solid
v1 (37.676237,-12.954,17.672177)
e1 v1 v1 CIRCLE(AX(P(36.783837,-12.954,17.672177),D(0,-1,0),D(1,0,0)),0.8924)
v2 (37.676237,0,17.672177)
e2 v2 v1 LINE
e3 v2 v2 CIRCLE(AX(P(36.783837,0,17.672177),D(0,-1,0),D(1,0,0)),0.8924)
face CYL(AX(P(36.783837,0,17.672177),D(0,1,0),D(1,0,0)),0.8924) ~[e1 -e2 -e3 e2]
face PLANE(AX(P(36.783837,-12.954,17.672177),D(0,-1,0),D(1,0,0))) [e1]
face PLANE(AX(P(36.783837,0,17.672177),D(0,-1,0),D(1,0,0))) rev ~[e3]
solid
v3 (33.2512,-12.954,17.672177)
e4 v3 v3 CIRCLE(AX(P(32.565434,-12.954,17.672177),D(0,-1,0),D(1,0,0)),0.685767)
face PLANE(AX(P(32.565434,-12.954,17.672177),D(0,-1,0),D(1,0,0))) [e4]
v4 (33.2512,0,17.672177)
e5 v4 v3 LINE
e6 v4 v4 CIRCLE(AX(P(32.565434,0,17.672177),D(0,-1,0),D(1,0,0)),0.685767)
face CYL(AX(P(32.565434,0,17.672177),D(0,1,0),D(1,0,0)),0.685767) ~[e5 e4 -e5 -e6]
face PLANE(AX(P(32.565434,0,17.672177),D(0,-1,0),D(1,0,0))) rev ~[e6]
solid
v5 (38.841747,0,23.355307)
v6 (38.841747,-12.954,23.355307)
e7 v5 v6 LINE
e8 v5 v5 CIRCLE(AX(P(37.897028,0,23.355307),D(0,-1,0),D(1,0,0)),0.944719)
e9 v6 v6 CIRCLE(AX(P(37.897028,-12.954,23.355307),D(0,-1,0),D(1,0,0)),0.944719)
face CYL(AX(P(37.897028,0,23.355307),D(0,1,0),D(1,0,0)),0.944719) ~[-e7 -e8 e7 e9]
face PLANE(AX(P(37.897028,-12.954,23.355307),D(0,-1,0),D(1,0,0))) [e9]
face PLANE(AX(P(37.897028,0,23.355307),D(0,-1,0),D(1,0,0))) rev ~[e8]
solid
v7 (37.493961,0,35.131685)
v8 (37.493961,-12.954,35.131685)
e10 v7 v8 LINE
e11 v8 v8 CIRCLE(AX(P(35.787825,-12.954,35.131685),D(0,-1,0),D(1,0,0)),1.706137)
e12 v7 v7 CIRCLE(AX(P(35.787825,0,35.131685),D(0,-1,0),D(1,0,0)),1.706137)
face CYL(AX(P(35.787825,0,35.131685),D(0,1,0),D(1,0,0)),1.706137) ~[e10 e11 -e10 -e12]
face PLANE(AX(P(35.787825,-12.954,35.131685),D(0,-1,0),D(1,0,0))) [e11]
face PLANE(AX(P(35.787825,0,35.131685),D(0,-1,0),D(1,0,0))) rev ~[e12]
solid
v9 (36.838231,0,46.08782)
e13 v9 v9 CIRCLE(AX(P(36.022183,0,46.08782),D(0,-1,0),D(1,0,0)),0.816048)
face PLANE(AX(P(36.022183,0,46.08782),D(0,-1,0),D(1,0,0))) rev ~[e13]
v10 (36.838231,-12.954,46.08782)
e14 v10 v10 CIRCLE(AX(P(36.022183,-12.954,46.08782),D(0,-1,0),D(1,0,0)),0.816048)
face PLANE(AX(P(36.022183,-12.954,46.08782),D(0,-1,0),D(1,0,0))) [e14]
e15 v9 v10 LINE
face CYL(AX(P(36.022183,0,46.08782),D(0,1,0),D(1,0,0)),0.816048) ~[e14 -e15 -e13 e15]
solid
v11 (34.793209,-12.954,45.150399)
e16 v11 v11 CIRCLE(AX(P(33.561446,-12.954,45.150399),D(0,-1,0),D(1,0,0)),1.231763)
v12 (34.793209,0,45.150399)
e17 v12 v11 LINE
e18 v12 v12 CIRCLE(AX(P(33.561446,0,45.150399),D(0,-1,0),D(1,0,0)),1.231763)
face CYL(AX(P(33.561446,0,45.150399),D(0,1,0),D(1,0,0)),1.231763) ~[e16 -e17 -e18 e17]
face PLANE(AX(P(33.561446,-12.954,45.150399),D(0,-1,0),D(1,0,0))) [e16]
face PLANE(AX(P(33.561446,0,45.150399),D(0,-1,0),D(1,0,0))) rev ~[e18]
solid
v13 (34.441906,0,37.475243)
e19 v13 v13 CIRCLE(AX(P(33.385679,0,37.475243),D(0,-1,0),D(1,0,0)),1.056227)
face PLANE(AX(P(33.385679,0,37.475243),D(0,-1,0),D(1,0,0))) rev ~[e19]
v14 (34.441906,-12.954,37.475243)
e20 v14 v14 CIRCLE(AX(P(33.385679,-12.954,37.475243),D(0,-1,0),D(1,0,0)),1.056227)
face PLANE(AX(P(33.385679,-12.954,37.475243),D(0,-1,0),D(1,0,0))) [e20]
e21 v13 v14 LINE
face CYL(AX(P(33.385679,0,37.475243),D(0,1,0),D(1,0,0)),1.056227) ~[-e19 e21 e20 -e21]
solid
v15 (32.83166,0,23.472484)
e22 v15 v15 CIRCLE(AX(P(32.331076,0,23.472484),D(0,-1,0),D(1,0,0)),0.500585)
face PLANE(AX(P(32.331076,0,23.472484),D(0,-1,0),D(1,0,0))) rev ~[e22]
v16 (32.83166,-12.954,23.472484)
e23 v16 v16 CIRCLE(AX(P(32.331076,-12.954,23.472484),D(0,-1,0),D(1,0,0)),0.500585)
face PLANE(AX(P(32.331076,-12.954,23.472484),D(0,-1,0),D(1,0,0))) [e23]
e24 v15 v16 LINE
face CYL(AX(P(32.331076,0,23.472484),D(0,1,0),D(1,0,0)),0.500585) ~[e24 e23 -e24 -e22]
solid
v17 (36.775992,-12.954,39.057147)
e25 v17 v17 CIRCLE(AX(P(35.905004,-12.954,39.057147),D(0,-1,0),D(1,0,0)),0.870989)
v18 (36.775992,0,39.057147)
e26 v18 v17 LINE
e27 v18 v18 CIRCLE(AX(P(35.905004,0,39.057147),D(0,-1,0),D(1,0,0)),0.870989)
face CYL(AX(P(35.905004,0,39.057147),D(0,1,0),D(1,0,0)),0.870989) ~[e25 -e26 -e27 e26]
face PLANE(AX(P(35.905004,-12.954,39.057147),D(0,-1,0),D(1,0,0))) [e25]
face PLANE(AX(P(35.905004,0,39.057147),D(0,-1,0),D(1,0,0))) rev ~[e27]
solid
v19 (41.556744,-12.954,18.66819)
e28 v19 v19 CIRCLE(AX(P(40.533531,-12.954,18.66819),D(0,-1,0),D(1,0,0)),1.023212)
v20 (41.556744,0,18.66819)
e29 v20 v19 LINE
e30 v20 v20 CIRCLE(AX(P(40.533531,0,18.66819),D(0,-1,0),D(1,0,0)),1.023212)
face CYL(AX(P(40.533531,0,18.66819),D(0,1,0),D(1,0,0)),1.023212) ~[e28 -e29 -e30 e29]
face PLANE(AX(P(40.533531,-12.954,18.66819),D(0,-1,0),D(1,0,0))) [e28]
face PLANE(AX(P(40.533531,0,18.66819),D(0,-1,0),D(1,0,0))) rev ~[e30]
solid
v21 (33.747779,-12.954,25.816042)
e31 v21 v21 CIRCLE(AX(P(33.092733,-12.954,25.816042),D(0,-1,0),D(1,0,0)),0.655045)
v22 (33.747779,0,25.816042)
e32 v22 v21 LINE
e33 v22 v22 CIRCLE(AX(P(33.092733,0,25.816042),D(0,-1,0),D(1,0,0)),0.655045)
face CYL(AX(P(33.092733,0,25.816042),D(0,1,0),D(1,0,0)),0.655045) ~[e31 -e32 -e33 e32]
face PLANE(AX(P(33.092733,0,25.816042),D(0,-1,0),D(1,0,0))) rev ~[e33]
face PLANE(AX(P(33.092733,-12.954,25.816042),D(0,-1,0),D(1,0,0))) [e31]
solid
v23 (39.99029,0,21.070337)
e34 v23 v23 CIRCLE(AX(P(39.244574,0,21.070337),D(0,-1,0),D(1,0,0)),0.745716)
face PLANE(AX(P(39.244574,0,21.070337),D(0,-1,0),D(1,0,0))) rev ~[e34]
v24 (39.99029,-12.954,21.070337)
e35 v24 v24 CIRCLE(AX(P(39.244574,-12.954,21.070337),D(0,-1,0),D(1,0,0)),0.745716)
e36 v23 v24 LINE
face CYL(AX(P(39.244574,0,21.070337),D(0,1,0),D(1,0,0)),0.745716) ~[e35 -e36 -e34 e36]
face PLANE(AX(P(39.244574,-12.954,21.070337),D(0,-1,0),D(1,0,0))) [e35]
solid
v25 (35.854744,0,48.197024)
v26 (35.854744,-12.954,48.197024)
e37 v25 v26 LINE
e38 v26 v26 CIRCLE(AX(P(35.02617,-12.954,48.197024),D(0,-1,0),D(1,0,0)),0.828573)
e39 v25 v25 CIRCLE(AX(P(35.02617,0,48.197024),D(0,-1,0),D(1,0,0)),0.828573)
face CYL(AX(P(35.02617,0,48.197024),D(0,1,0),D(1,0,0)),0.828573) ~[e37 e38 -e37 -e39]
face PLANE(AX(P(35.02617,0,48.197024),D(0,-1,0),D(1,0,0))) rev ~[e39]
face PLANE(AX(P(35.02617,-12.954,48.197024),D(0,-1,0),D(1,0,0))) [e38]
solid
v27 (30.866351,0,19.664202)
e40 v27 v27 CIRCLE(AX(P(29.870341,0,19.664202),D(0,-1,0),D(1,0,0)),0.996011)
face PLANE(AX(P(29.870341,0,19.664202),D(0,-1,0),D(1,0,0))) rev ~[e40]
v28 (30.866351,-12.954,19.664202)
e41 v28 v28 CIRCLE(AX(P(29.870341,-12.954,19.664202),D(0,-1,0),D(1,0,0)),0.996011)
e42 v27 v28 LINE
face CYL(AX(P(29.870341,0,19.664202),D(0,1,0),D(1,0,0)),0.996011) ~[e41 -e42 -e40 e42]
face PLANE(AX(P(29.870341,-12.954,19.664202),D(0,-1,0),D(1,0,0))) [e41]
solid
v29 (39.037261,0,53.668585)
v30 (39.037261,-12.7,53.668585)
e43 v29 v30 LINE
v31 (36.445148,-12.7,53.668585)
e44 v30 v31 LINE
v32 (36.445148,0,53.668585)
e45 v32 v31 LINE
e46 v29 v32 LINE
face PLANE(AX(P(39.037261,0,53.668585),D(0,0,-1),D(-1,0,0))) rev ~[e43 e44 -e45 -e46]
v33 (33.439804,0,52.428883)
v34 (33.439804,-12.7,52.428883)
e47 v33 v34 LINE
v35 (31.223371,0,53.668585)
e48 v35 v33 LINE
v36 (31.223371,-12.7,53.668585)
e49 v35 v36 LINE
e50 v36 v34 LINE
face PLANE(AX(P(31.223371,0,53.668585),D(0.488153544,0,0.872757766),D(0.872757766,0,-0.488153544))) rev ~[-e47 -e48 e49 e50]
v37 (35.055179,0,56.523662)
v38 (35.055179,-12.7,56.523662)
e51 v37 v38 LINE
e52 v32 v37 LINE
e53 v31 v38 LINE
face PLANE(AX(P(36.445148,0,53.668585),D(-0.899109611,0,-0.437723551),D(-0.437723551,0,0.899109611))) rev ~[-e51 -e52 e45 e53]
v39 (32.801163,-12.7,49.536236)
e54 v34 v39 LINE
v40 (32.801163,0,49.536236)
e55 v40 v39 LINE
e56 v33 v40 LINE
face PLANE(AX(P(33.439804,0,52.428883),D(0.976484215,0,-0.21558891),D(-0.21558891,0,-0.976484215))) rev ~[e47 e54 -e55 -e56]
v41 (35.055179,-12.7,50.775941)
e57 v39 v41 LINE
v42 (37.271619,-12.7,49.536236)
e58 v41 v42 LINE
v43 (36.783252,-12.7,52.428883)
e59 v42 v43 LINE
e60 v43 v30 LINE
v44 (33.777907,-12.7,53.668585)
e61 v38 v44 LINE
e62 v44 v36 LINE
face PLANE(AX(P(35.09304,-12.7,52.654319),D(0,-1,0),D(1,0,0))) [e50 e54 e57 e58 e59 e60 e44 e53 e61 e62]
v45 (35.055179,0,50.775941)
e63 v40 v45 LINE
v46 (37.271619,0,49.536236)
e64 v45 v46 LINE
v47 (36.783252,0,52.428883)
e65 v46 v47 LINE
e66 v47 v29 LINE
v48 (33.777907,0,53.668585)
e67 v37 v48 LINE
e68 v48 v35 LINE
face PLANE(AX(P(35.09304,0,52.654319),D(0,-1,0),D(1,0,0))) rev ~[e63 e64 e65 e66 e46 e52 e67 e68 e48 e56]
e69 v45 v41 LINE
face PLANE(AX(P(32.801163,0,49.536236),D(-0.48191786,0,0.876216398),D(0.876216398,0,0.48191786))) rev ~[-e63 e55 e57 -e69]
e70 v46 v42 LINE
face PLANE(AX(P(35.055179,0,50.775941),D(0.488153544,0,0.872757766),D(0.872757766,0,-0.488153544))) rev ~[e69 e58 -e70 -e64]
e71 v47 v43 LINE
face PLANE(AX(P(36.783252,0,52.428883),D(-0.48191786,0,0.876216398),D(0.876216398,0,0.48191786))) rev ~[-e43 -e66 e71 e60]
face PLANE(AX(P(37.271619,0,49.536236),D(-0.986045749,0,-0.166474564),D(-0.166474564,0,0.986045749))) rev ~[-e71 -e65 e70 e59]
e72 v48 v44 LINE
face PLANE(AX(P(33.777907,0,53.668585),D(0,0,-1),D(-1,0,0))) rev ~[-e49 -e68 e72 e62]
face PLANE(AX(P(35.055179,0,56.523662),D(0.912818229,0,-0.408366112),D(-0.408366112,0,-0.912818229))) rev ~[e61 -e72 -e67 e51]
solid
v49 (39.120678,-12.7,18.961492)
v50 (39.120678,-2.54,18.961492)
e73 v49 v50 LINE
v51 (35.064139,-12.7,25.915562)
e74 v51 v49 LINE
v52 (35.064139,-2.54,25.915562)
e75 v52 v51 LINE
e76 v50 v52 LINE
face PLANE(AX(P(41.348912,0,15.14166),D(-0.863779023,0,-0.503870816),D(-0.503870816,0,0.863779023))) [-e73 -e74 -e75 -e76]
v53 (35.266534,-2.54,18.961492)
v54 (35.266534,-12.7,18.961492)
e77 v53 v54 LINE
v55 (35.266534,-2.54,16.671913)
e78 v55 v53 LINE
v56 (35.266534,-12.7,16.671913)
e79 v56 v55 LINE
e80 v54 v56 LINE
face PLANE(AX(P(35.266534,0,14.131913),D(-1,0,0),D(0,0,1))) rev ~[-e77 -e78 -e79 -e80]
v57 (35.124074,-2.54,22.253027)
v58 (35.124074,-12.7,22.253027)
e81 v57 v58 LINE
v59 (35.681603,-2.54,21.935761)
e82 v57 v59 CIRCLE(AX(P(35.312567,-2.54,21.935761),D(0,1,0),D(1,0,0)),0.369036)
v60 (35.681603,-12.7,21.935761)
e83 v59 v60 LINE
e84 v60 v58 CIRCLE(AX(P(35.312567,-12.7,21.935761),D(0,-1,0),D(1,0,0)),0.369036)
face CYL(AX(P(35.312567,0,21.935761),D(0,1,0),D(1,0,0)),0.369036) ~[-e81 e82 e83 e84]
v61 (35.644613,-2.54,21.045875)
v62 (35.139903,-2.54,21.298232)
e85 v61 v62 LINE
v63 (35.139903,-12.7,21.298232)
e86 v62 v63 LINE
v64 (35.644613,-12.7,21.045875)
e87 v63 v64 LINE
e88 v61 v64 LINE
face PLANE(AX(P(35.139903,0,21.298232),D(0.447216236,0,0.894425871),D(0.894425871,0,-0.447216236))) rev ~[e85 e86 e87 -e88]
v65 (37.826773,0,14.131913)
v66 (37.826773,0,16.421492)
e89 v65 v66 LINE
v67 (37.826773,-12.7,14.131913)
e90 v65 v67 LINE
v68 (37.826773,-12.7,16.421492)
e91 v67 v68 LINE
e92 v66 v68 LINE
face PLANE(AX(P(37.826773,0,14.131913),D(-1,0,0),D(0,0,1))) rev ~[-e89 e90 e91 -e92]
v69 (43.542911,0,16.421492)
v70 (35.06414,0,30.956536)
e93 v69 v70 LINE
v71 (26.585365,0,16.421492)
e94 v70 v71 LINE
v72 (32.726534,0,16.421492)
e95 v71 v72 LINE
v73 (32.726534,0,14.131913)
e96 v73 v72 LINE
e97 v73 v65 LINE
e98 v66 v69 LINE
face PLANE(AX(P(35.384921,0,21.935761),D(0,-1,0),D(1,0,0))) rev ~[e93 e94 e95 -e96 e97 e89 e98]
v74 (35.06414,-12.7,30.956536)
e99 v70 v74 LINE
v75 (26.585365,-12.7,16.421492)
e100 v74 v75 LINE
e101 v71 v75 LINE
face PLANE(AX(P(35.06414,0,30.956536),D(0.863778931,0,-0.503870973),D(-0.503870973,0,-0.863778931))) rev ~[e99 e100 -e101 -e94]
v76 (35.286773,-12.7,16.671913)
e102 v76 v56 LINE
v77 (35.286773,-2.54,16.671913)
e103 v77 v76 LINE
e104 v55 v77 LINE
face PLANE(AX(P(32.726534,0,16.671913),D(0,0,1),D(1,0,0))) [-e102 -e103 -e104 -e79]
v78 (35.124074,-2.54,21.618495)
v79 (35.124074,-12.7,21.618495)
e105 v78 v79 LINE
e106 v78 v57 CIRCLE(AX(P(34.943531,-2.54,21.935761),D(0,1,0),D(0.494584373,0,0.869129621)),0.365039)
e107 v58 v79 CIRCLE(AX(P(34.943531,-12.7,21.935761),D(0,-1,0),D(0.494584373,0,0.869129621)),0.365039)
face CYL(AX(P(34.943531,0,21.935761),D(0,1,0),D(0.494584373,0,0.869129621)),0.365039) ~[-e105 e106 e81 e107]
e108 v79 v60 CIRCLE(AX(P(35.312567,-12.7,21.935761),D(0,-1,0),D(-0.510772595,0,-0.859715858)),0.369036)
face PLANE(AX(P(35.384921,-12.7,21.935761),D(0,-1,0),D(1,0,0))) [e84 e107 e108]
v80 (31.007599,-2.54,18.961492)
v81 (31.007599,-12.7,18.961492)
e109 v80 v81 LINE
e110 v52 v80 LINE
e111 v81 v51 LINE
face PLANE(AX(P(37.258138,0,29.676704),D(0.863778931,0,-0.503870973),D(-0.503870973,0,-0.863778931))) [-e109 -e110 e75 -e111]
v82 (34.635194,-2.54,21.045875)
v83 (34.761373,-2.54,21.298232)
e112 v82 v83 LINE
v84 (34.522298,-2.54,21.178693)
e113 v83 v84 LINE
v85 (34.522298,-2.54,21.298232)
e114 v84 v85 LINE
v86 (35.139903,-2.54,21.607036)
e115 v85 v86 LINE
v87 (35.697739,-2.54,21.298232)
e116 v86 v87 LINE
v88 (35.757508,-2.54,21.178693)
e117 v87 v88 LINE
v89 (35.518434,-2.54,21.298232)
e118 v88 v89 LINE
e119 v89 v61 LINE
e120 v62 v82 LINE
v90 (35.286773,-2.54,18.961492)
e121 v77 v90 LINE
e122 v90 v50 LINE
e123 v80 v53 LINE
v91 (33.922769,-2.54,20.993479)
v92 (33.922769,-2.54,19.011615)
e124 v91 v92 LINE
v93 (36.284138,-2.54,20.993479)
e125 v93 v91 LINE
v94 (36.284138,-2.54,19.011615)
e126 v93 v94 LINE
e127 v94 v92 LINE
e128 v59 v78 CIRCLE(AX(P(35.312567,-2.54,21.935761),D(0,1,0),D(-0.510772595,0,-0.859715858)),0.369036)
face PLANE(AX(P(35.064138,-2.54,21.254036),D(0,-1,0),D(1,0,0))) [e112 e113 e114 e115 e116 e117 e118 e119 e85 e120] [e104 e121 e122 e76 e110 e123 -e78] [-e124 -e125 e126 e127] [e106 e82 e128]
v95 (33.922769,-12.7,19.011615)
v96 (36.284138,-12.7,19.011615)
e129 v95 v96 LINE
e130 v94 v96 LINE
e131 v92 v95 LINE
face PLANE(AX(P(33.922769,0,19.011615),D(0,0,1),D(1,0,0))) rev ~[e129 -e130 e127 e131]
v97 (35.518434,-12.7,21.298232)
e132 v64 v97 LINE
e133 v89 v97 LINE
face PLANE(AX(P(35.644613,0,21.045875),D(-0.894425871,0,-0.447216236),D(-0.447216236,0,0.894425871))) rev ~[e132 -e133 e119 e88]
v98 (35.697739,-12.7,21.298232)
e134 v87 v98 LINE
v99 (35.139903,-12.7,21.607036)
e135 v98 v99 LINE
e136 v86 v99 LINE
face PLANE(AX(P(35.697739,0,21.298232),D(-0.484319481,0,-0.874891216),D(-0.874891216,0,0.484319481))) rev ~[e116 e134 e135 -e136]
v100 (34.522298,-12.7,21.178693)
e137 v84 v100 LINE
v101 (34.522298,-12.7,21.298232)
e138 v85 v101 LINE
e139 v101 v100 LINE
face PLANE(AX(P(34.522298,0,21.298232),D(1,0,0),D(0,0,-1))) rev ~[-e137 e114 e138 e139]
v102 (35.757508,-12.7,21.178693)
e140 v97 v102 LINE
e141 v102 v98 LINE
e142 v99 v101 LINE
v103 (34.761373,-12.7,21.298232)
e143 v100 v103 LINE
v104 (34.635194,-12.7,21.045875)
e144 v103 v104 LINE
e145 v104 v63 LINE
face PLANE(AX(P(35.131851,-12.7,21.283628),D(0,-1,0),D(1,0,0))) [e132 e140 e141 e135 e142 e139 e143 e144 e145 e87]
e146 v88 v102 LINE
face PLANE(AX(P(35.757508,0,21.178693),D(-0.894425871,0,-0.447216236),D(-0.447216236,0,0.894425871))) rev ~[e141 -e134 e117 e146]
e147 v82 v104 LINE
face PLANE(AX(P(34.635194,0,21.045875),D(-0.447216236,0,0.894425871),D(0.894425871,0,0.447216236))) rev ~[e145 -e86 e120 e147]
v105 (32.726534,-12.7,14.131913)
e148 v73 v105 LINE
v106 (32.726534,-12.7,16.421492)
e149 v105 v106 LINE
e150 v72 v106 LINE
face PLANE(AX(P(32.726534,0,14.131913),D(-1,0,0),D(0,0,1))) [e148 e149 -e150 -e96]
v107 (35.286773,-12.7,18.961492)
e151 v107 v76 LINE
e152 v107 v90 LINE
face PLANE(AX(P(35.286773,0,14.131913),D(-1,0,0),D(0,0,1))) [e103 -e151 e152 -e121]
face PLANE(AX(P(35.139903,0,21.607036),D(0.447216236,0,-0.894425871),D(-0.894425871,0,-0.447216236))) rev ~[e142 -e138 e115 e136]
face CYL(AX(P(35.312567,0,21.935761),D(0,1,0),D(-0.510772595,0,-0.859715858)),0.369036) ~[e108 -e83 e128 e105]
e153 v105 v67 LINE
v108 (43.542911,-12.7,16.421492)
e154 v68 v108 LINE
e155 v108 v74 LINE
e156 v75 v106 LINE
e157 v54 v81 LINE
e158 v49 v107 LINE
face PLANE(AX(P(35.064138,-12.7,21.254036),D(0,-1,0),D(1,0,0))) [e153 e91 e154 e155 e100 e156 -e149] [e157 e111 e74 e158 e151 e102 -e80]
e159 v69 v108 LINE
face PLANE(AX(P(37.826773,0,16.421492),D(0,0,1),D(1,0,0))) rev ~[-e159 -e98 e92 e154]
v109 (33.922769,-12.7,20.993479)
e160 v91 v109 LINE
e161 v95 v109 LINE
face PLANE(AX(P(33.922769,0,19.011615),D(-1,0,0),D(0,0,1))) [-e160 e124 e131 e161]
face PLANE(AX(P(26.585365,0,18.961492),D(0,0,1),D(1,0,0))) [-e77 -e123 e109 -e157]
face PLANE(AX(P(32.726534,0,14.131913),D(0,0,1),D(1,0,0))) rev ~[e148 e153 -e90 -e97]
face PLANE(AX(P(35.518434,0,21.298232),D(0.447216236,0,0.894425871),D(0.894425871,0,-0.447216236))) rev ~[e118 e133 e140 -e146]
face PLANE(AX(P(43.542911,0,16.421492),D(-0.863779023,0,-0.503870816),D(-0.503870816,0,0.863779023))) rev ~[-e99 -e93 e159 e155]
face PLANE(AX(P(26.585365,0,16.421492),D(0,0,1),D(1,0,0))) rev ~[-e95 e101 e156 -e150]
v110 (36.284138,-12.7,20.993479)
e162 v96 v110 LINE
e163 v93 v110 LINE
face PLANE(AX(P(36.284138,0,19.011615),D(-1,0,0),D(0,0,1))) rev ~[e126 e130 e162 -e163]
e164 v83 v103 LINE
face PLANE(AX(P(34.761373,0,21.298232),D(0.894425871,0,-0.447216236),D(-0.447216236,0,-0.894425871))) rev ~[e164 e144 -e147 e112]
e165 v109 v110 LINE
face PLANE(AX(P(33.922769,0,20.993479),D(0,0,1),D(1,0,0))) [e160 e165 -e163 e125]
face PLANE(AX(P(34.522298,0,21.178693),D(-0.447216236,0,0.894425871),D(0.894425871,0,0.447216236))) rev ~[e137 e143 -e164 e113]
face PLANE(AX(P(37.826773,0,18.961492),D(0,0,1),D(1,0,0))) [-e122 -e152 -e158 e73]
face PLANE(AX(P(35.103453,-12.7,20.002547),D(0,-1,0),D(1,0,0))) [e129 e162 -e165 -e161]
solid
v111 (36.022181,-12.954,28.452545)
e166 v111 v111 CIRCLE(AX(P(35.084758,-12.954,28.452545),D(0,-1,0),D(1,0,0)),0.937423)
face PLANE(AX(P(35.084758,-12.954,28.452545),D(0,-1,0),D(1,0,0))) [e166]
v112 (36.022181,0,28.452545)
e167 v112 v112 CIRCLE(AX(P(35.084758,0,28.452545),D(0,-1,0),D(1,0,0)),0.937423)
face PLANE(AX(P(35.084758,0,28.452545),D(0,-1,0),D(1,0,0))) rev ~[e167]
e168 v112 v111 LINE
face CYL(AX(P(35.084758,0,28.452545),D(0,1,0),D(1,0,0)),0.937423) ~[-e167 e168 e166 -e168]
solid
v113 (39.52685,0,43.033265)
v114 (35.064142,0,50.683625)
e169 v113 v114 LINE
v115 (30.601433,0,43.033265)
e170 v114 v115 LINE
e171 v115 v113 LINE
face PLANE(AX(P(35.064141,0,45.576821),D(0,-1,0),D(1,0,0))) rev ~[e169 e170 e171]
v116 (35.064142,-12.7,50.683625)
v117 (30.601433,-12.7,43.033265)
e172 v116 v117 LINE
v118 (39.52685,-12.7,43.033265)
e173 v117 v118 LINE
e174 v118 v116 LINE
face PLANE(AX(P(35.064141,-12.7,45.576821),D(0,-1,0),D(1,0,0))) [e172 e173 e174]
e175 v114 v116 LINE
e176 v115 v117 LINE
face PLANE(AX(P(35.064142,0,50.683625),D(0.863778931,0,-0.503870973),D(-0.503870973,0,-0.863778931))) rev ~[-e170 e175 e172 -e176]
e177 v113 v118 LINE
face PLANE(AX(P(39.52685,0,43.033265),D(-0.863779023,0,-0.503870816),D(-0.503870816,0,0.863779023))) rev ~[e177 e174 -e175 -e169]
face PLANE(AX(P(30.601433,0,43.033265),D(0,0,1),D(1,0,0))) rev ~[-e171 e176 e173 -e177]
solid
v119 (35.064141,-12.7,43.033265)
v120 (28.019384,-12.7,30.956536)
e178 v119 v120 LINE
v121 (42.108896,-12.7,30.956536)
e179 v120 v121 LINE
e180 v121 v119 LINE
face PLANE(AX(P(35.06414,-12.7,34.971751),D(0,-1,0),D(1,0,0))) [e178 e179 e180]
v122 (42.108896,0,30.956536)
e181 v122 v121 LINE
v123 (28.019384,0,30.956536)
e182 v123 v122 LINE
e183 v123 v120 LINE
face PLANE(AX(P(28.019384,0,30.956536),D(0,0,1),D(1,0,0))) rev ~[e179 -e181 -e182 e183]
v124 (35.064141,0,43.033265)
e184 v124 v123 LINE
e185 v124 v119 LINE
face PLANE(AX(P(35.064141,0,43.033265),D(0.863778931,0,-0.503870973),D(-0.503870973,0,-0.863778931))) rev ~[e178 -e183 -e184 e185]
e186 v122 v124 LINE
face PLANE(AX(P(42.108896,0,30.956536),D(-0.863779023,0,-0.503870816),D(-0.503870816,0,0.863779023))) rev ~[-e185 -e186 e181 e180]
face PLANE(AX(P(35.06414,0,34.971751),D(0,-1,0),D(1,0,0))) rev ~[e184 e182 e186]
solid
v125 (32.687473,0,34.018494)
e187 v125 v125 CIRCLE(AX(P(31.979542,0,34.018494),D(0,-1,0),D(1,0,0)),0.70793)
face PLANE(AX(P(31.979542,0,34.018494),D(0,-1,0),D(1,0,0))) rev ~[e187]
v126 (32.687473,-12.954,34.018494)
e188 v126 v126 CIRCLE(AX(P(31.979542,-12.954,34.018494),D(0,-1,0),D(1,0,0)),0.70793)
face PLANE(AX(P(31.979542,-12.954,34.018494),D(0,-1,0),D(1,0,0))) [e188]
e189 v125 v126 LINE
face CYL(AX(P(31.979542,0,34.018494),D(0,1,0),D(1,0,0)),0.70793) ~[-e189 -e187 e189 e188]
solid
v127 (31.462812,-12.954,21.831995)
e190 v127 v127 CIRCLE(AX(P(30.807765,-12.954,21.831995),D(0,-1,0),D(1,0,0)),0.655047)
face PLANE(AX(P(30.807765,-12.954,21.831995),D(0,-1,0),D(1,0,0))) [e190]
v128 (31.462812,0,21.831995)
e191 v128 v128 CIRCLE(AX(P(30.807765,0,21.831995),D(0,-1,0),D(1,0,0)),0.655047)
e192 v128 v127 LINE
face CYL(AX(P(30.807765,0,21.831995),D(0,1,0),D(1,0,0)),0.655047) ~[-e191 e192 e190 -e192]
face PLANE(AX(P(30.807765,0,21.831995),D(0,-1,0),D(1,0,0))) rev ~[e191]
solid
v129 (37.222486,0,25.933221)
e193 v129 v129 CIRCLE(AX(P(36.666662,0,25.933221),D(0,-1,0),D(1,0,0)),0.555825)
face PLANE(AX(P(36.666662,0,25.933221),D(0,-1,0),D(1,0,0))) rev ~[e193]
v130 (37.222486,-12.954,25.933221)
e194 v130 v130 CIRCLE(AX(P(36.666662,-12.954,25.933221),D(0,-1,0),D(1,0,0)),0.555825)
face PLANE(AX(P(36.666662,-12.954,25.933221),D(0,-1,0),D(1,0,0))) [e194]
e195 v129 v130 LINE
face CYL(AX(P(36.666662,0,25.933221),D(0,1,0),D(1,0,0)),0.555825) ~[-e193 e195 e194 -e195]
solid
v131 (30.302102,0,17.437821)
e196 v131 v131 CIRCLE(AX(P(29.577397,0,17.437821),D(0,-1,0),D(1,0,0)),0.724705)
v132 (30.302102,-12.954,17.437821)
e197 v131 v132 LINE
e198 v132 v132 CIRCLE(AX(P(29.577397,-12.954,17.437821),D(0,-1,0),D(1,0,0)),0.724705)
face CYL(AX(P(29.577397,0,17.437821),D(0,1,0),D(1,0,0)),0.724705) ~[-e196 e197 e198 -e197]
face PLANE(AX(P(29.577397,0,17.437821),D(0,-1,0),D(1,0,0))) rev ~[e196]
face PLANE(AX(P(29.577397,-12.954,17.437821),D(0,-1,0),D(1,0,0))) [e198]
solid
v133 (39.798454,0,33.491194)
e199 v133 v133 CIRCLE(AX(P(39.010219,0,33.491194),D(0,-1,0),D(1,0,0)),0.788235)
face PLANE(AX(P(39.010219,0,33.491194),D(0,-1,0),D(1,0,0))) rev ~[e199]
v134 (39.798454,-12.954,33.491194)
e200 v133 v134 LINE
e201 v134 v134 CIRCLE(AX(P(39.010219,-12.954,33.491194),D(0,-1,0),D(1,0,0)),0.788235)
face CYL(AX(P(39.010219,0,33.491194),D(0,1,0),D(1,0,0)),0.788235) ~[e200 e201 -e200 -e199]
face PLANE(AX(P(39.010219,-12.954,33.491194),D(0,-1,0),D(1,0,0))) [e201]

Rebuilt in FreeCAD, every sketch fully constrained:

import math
import FreeCAD as App
import Part
import Sketcher

V = App.Vector
Q = App.Units.Quantity


def faces_at(feature, points):
    """Names of the faces that lie closest to the given points."""
    faces = feature.Shape.Faces
    near = lambda p: min(range(len(faces)), key=lambda i: faces[i].distToShape(Part.Vertex(*p))[0])
    return sorted({f"Face{near(p) + 1}" for p in points})


def add_polygon(sketch, points):
    """Adds a closed chain of lines whose ends are joined by coincident constraints."""
    first, n = sketch.GeometryCount, len(points)
    for a, b in zip(points, points[1:] + points[:1]):
        sketch.addGeometry(Part.LineSegment(App.Vector(*a, 0), App.Vector(*b, 0)), False)
    for i in range(n):
        sketch.addConstraint(Sketcher.Constraint("Coincident", first + i, 2, first + (i + 1) % n, 1))

doc = App.newDocument("Part")
body = doc.addObject("PartDesign::Body", "Body")

sketch1 = body.newObject("Sketcher::SketchObject", "Sketch")
sketch1.AttachmentSupport = (doc.getObject("XZ_Plane"), [""])
sketch1.MapMode = "FlatFace"
add_polygon(sketch1, [(40, 43), (35, 51), (31, 43)])
sketch1.addConstraint([
    Sketcher.Constraint("Horizontal", 2),
    Sketcher.Constraint("Equal", 0, 1),
    Sketcher.Constraint("Distance", 0, Q("8.856849 mm")),
    Sketcher.Constraint("DistanceX", 2, 1, 2, 2, Q("8.925417 mm")),
    Sketcher.Constraint("DistanceX", -1, 1, 2, 2, Q("39.52685 mm")),
    Sketcher.Constraint("DistanceY", -1, 1, 0, 2, Q("50.683625 mm")),
])
pad1 = body.newObject("PartDesign::Pad", "Pad")
pad1.Profile = sketch1
pad1.Length = Q("0.5 in")
body2 = doc.addObject("PartDesign::Body", "Body001")

sketch2 = body2.newObject("Sketcher::SketchObject", "Sketch001")
sketch2.AttachmentSupport = (doc.getObject("XZ_Plane001"), [""])
sketch2.MapMode = "FlatFace"
add_polygon(sketch2, [(43.5, 16.4), (35.1, 31), (26.6, 16.4), (32.7, 16.4), (32.7, 14.1), (37.8, 14.1), (37.8, 16.4)])
sketch2.addConstraint([
    Sketcher.Constraint("Horizontal", 2),
    Sketcher.Constraint("Vertical", 3),
    Sketcher.Constraint("Horizontal", 4),
    Sketcher.Constraint("Vertical", 5),
    Sketcher.Constraint("Horizontal", 6),
    Sketcher.Constraint("Horizontal", 2, 2, 5, 2),
    Sketcher.Constraint("Equal", 0, 1),
    Sketcher.Constraint("DistanceX", 2, 1, 2, 2, Q("6.141168 mm")),
    Sketcher.Constraint("DistanceX", 4, 1, 4, 2, Q("5.100239 mm")),
    Sketcher.Constraint("DistanceY", 3, 2, 3, 1, Q("2.289579 mm")),
    Sketcher.Constraint("Distance", 0, Q("16.827271 mm")),
    Sketcher.Constraint("DistanceX", 6, 1, 6, 2, Q("5.716138 mm")),
    Sketcher.Constraint("DistanceX", -1, 1, 0, 2, Q("35.06414 mm")),
    Sketcher.Constraint("DistanceY", -1, 1, 0, 2, Q("30.956536 mm")),
])
pad2 = body2.newObject("PartDesign::Pad", "Pad001")
pad2.Profile = sketch2
pad2.Length = Q("0.5 in")
doc.recompute()

thickness = body2.newObject("PartDesign::Thickness", "Thickness")
thickness.Base = (pad2, faces_at(pad2, [(35.064, -12.7, 22.544)]))
thickness.Value = Q("0.1 in")
thickness.Reversed = True
thickness.Join = "Intersection"

sketch3 = body2.newObject("Sketcher::SketchObject", "Sketch002")
sketch3.AttachmentSupport = (doc.getObject("XZ_Plane001"), [""])
sketch3.MapMode = "FlatFace"
add_polygon(sketch3, [(33.9, 21), (33.9, 19), (36.3, 19), (36.3, 21)])
sketch3.addConstraint([
    Sketcher.Constraint("Vertical", 0),
    Sketcher.Constraint("Horizontal", 1),
    Sketcher.Constraint("Vertical", 2),
    Sketcher.Constraint("Horizontal", 3),
    Sketcher.Constraint("DistanceX", 1, 1, 1, 2, Q("2.361368 mm")),
    Sketcher.Constraint("DistanceY", 0, 2, 0, 1, Q("1.981864 mm")),
    Sketcher.Constraint("DistanceX", -1, 1, 0, 2, Q("33.922769 mm")),
    Sketcher.Constraint("DistanceY", -1, 1, 2, 2, Q("20.993479 mm")),
])
pad3 = body2.newObject("PartDesign::Pad", "Pad002")
pad3.Profile = sketch3
pad3.Length = Q("0.5 in")

sketch4 = body2.newObject("Sketcher::SketchObject", "Sketch003")
sketch4.AttachmentSupport = (doc.getObject("XZ_Plane001"), [""])
sketch4.MapMode = "FlatFace"
sketch4.addGeometry(Part.ArcOfCircle(Part.Circle(V(35.31, 21.94, 0), V(0, 0, 1), 0.37), math.radians(-121), math.radians(0)), False)
sketch4.addGeometry(Part.ArcOfCircle(Part.Circle(V(35.31, 21.94, 0), V(0, 0, 1), 0.37), math.radians(0), math.radians(121)), False)
sketch4.addGeometry(Part.ArcOfCircle(Part.Circle(V(34.94, 21.94, 0), V(0, 0, 1), 0.37), math.radians(60), math.radians(300)), False)
add_polygon(sketch4, [(34.64, 21.05), (35.14, 21.3), (35.64, 21.05), (35.52, 21.3), (35.76, 21.18), (35.7, 21.3), (35.14, 21.61), (34.52, 21.3), (34.52, 21.18), (34.76, 21.3)])
sketch4.addConstraint([
    Sketcher.Constraint("Tangent", 0, 2, 1, 1),
    Sketcher.Constraint("Coincident", 1, 2, 2, 1),
    Sketcher.Constraint("Coincident", 2, 2, 0, 1),
    Sketcher.Constraint("Vertical", 10),
    Sketcher.Constraint("Equal", 0, 1),
    Sketcher.Constraint("Perpendicular", 3, 5),
    Sketcher.Constraint("Parallel", 4, 6),
    Sketcher.Constraint("Parallel", 5, 7),
    Sketcher.Constraint("Perpendicular", 7, 9),
    Sketcher.Constraint("Parallel", 9, 11),
    Sketcher.Constraint("Perpendicular", 6, 12),
    Sketcher.Constraint("Horizontal", 1, 3, 2, 3),
    Sketcher.Constraint("Horizontal", 2, 3, 0, 2),
    Sketcher.Constraint("Horizontal", 3, 2, 5, 2),
    Sketcher.Constraint("Horizontal", 5, 2, 7, 2),
    Sketcher.Constraint("Horizontal", 7, 2, 9, 2),
    Sketcher.Constraint("Horizontal", 6, 2, 10, 2),
    Sketcher.Constraint("Horizontal", 9, 2, 11, 2),
    Sketcher.Constraint("Horizontal", 4, 2, 12, 2),
    Sketcher.Constraint("Vertical", 3, 2, 8, 2),
    Sketcher.Constraint("Equal", 3, 4),
    Sketcher.Constraint("Radius", 2, Q("0.365039 mm")),
    Sketcher.Constraint("Radius", 0, Q("0.369036 mm")),
    Sketcher.Constraint("DistanceY", 10, 2, 10, 1, Q("0.119538 mm")),
    Sketcher.Constraint("DistanceX", -1, 1, 9, 2, Q("34.522298 mm")),
    Sketcher.Constraint("DistanceX", 3, 2, 0, 2, Q("0.541699 mm")),
    Sketcher.Constraint("DistanceY", 6, 2, 2, 2, Q("0.439802 mm")),
    Sketcher.Constraint("DistanceX", 11, 2, 2, 2, Q("0.362701 mm")),
    Sketcher.Constraint("DistanceY", -1, 1, 0, 3, Q("21.935761 mm")),
    Sketcher.Constraint("DistanceX", -1, 1, 2, 3, Q("34.943531 mm")),
    Sketcher.Constraint("DistanceY", -1, 1, 3, 2, Q("21.298232 mm")),
])
pad4 = body2.newObject("PartDesign::Pad", "Pad003")
pad4.Profile = sketch4
pad4.Length = Q("0.5 in")
body3 = doc.addObject("PartDesign::Body", "Body002")

sketch5 = body3.newObject("Sketcher::SketchObject", "Sketch004")
sketch5.AttachmentSupport = (doc.getObject("XZ_Plane002"), [""])
sketch5.MapMode = "FlatFace"
add_polygon(sketch5, [(42, 31), (35, 43), (28, 31)])
sketch5.addConstraint([
    Sketcher.Constraint("Horizontal", 2),
    Sketcher.Constraint("Equal", 0, 1),
    Sketcher.Constraint("DistanceX", 2, 1, 2, 2, Q("14.089512 mm")),
    Sketcher.Constraint("Distance", 0, Q("13.981271 mm")),
    Sketcher.Constraint("DistanceX", -1, 1, 0, 2, Q("35.064141 mm")),
    Sketcher.Constraint("DistanceY", -1, 1, 0, 2, Q("43.033265 mm")),
])
pad5 = body3.newObject("PartDesign::Pad", "Pad004")
pad5.Profile = sketch5
pad5.Length = Q("0.5 in")
body4 = doc.addObject("PartDesign::Body", "Body003")

sketch6 = body4.newObject("Sketcher::SketchObject", "Sketch005")
sketch6.AttachmentSupport = (doc.getObject("XZ_Plane003"), [""])
sketch6.MapMode = "FlatFace"
add_polygon(sketch6, [(32.8, 49.5), (35.1, 50.8), (37.3, 49.5), (36.8, 52.4), (39, 53.7), (36.4, 53.7), (35.1, 56.5), (33.8, 53.7), (31.2, 53.7), (33.4, 52.4)])
sketch6.addConstraint([
    Sketcher.Constraint("Horizontal", 4),
    Sketcher.Constraint("Horizontal", 7),
    Sketcher.Constraint("Parallel", 0, 3),
    Sketcher.Constraint("Parallel", 1, 8),
    Sketcher.Constraint("Horizontal", 4, 2, 6, 2),
    Sketcher.Constraint("Horizontal", 2, 2, 8, 2),
    Sketcher.Constraint("Horizontal", 1, 2, 9, 2),
    Sketcher.Constraint("Vertical", 0, 2, 5, 2),
    Sketcher.Constraint("DistanceX", -1, 1, 3, 2, Q("1.5369 in")),
    Sketcher.Constraint("Distance", 1, Q("2.539582 mm")),
    Sketcher.Constraint("Distance", 5, Q("3.17545 mm")),
    Sketcher.Constraint("Distance", 6, Q("3.127761 mm")),
    Sketcher.Constraint("DistanceX", 4, 2, 4, 1, Q("2.592113 mm")),
    Sketcher.Constraint("DistanceX", 7, 2, 7, 1, Q("2.554537 mm")),
    Sketcher.Constraint("DistanceX", -1, 1, 0, 2, Q("35.055179 mm")),
    Sketcher.Constraint("DistanceY", -1, 1, 0, 2, Q("50.775941 mm")),
    Sketcher.Constraint("DistanceX", -1, 1, 1, 2, Q("37.271619 mm")),
    Sketcher.Constraint("DistanceX", -1, 1, 2, 2, Q("36.783252 mm")),
    Sketcher.Constraint("DistanceY", 0, 2, 2, 2, Q("1.652941 mm")),
    Sketcher.Constraint("DistanceY", 1, 2, 3, 2, Q("4.132349 mm")),
])
pad6 = body4.newObject("PartDesign::Pad", "Pad005")
pad6.Profile = sketch6
pad6.Length = Q("0.5 in")
body5 = doc.addObject("PartDesign::Body", "Body004")

sketch7 = body5.newObject("Sketcher::SketchObject", "Sketch006")
sketch7.AttachmentSupport = (doc.getObject("XZ_Plane004"), [""])
sketch7.MapMode = "FlatFace"
sketch7.addGeometry(Part.Circle(V(35, 48.2, 0), V(0, 0, 1), 0.8), False)
sketch7.addConstraint([
    Sketcher.Constraint("Diameter", 0, Q("1.657147 mm")),
    Sketcher.Constraint("DistanceX", -1, 1, 0, 3, Q("35.02617 mm")),
    Sketcher.Constraint("DistanceY", -1, 1, 0, 3, Q("48.197024 mm")),
])
pad7 = body5.newObject("PartDesign::Pad", "Pad006")
pad7.Profile = sketch7
pad7.Length = Q("0.51 in")
body6 = doc.addObject("PartDesign::Body", "Body005")

sketch8 = body6.newObject("Sketcher::SketchObject", "Sketch007")
sketch8.AttachmentSupport = (doc.getObject("XZ_Plane005"), [""])
sketch8.MapMode = "FlatFace"
sketch8.addGeometry(Part.Circle(V(36, 46.1, 0), V(0, 0, 1), 0.8), False)
sketch8.addConstraint([
    Sketcher.Constraint("Diameter", 0, Q("1.632096 mm")),
    Sketcher.Constraint("DistanceY", -1, 1, 0, 3, Q("46.08782 mm")),
    Sketcher.Constraint("DistanceX", -1, 1, 0, 3, Q("36.022183 mm")),
])
pad8 = body6.newObject("PartDesign::Pad", "Pad007")
pad8.Profile = sketch8
pad8.Length = Q("0.51 in")
body7 = doc.addObject("PartDesign::Body", "Body006")

sketch9 = body7.newObject("Sketcher::SketchObject", "Sketch008")
sketch9.AttachmentSupport = (doc.getObject("XZ_Plane006"), [""])
sketch9.MapMode = "FlatFace"
sketch9.addGeometry(Part.Circle(V(33.6, 45.2, 0), V(0, 0, 1), 1.2), False)
sketch9.addConstraint([
    Sketcher.Constraint("Diameter", 0, Q("2.463526 mm")),
    Sketcher.Constraint("DistanceY", -1, 1, 0, 3, Q("45.150399 mm")),
    Sketcher.Constraint("DistanceX", -1, 1, 0, 3, Q("33.561446 mm")),
])
pad9 = body7.newObject("PartDesign::Pad", "Pad008")
pad9.Profile = sketch9
pad9.Length = Q("0.51 in")
body8 = doc.addObject("PartDesign::Body", "Body007")

sketch10 = body8.newObject("Sketcher::SketchObject", "Sketch009")
sketch10.AttachmentSupport = (doc.getObject("XZ_Plane007"), [""])
sketch10.MapMode = "FlatFace"
sketch10.addGeometry(Part.Circle(V(35.9, 39.1, 0), V(0, 0, 1), 0.9), False)
sketch10.addConstraint([
    Sketcher.Constraint("Diameter", 0, Q("1.741978 mm")),
    Sketcher.Constraint("DistanceX", -1, 1, 0, 3, Q("35.905004 mm")),
    Sketcher.Constraint("DistanceY", -1, 1, 0, 3, Q("39.057147 mm")),
])
pad10 = body8.newObject("PartDesign::Pad", "Pad009")
pad10.Profile = sketch10
pad10.Length = Q("0.51 in")
body9 = doc.addObject("PartDesign::Body", "Body008")

sketch11 = body9.newObject("Sketcher::SketchObject", "Sketch010")
sketch11.AttachmentSupport = (doc.getObject("XZ_Plane008"), [""])
sketch11.MapMode = "FlatFace"
sketch11.addGeometry(Part.Circle(V(33.4, 37.5, 0), V(0, 0, 1), 1.1), False)
sketch11.addConstraint([
    Sketcher.Constraint("Diameter", 0, Q("2.112455 mm")),
    Sketcher.Constraint("DistanceX", -1, 1, 0, 3, Q("33.385679 mm")),
    Sketcher.Constraint("DistanceY", -1, 1, 0, 3, Q("37.475243 mm")),
])
pad11 = body9.newObject("PartDesign::Pad", "Pad010")
pad11.Profile = sketch11
pad11.Length = Q("0.51 in")
body10 = doc.addObject("PartDesign::Body", "Body009")

sketch12 = body10.newObject("Sketcher::SketchObject", "Sketch011")
sketch12.AttachmentSupport = (doc.getObject("XZ_Plane009"), [""])
sketch12.MapMode = "FlatFace"
sketch12.addGeometry(Part.Circle(V(35.8, 35.1, 0), V(0, 0, 1), 1.7), False)
sketch12.addConstraint([
    Sketcher.Constraint("Diameter", 0, Q("3.412273 mm")),
    Sketcher.Constraint("DistanceX", -1, 1, 0, 3, Q("35.787825 mm")),
    Sketcher.Constraint("DistanceY", -1, 1, 0, 3, Q("35.131685 mm")),
])
pad12 = body10.newObject("PartDesign::Pad", "Pad011")
pad12.Profile = sketch12
pad12.Length = Q("0.51 in")
body11 = doc.addObject("PartDesign::Body", "Body010")

sketch13 = body11.newObject("Sketcher::SketchObject", "Sketch012")
sketch13.AttachmentSupport = (doc.getObject("XZ_Plane010"), [""])
sketch13.MapMode = "FlatFace"
sketch13.addGeometry(Part.Circle(V(32, 34, 0), V(0, 0, 1), 0.7), False)
sketch13.addConstraint([
    Sketcher.Constraint("Diameter", 0, Q("1.415861 mm")),
    Sketcher.Constraint("DistanceX", -1, 1, 0, 3, Q("31.979542 mm")),
    Sketcher.Constraint("DistanceY", -1, 1, 0, 3, Q("34.018494 mm")),
])
pad13 = body11.newObject("PartDesign::Pad", "Pad012")
pad13.Profile = sketch13
pad13.Length = Q("0.51 in")
body12 = doc.addObject("PartDesign::Body", "Body011")

sketch14 = body12.newObject("Sketcher::SketchObject", "Sketch013")
sketch14.AttachmentSupport = (doc.getObject("XZ_Plane011"), [""])
sketch14.MapMode = "FlatFace"
sketch14.addGeometry(Part.Circle(V(39, 33.5, 0), V(0, 0, 1), 0.8), False)
sketch14.addConstraint([
    Sketcher.Constraint("Diameter", 0, Q("1.576469 mm")),
    Sketcher.Constraint("DistanceX", -1, 1, 0, 3, Q("39.010219 mm")),
    Sketcher.Constraint("DistanceY", -1, 1, 0, 3, Q("33.491194 mm")),
])
pad14 = body12.newObject("PartDesign::Pad", "Pad013")
pad14.Profile = sketch14
pad14.Length = Q("0.51 in")
body13 = doc.addObject("PartDesign::Body", "Body012")

sketch15 = body13.newObject("Sketcher::SketchObject", "Sketch014")
sketch15.AttachmentSupport = (doc.getObject("XZ_Plane012"), [""])
sketch15.MapMode = "FlatFace"
sketch15.addGeometry(Part.Circle(V(35.1, 28.5, 0), V(0, 0, 1), 0.9), False)
sketch15.addConstraint([
    Sketcher.Constraint("Diameter", 0, Q("1.874845 mm")),
    Sketcher.Constraint("DistanceX", -1, 1, 0, 3, Q("35.084758 mm")),
    Sketcher.Constraint("DistanceY", -1, 1, 0, 3, Q("28.452545 mm")),
])
pad15 = body13.newObject("PartDesign::Pad", "Pad014")
pad15.Profile = sketch15
pad15.Length = Q("0.51 in")
body14 = doc.addObject("PartDesign::Body", "Body013")

sketch16 = body14.newObject("Sketcher::SketchObject", "Sketch015")
sketch16.AttachmentSupport = (doc.getObject("XZ_Plane013"), [""])
sketch16.MapMode = "FlatFace"
sketch16.addGeometry(Part.Circle(V(36.7, 25.9, 0), V(0, 0, 1), 0.6), False)
sketch16.addConstraint([
    Sketcher.Constraint("Diameter", 0, Q("1.111649 mm")),
    Sketcher.Constraint("DistanceX", -1, 1, 0, 3, Q("36.666662 mm")),
    Sketcher.Constraint("DistanceY", -1, 1, 0, 3, Q("25.933221 mm")),
])
pad16 = body14.newObject("PartDesign::Pad", "Pad015")
pad16.Profile = sketch16
pad16.Length = Q("0.51 in")
body15 = doc.addObject("PartDesign::Body", "Body014")

sketch17 = body15.newObject("Sketcher::SketchObject", "Sketch016")
sketch17.AttachmentSupport = (doc.getObject("XZ_Plane014"), [""])
sketch17.MapMode = "FlatFace"
sketch17.addGeometry(Part.Circle(V(37.9, 23.4, 0), V(0, 0, 1), 0.9), False)
sketch17.addConstraint([
    Sketcher.Constraint("Diameter", 0, Q("1.889438 mm")),
    Sketcher.Constraint("DistanceX", -1, 1, 0, 3, Q("37.897028 mm")),
    Sketcher.Constraint("DistanceY", -1, 1, 0, 3, Q("23.355307 mm")),
])
pad17 = body15.newObject("PartDesign::Pad", "Pad016")
pad17.Profile = sketch17
pad17.Length = Q("0.51 in")
body16 = doc.addObject("PartDesign::Body", "Body015")

sketch18 = body16.newObject("Sketcher::SketchObject", "Sketch017")
sketch18.AttachmentSupport = (doc.getObject("XZ_Plane015"), [""])
sketch18.MapMode = "FlatFace"
sketch18.addGeometry(Part.Circle(V(40.5, 18.7, 0), V(0, 0, 1), 1), False)
sketch18.addConstraint([
    Sketcher.Constraint("Diameter", 0, Q("2.046425 mm")),
    Sketcher.Constraint("DistanceX", -1, 1, 0, 3, Q("40.533531 mm")),
    Sketcher.Constraint("DistanceY", -1, 1, 0, 3, Q("18.66819 mm")),
])
pad18 = body16.newObject("PartDesign::Pad", "Pad017")
pad18.Profile = sketch18
pad18.Length = Q("0.51 in")
body17 = doc.addObject("PartDesign::Body", "Body016")

sketch19 = body17.newObject("Sketcher::SketchObject", "Sketch018")
sketch19.AttachmentSupport = (doc.getObject("XZ_Plane016"), [""])
sketch19.MapMode = "FlatFace"
sketch19.addGeometry(Part.Circle(V(39.2, 21.1, 0), V(0, 0, 1), 0.7), False)
sketch19.addConstraint([
    Sketcher.Constraint("Diameter", 0, Q("1.491432 mm")),
    Sketcher.Constraint("DistanceX", -1, 1, 0, 3, Q("39.244574 mm")),
    Sketcher.Constraint("DistanceY", -1, 1, 0, 3, Q("21.070337 mm")),
])
pad19 = body17.newObject("PartDesign::Pad", "Pad018")
pad19.Profile = sketch19
pad19.Length = Q("0.51 in")
body18 = doc.addObject("PartDesign::Body", "Body017")

sketch20 = body18.newObject("Sketcher::SketchObject", "Sketch019")
sketch20.AttachmentSupport = (doc.getObject("XZ_Plane017"), [""])
sketch20.MapMode = "FlatFace"
sketch20.addGeometry(Part.Circle(V(36.8, 17.7, 0), V(0, 0, 1), 0.9), False)
sketch20.addConstraint([
    Sketcher.Constraint("Diameter", 0, Q("1.784801 mm")),
    Sketcher.Constraint("DistanceX", -1, 1, 0, 3, Q("36.783837 mm")),
    Sketcher.Constraint("DistanceY", -1, 1, 0, 3, Q("17.672177 mm")),
])
pad20 = body18.newObject("PartDesign::Pad", "Pad019")
pad20.Profile = sketch20
pad20.Length = Q("0.51 in")
body19 = doc.addObject("PartDesign::Body", "Body018")

sketch21 = body19.newObject("Sketcher::SketchObject", "Sketch020")
sketch21.AttachmentSupport = (doc.getObject("XZ_Plane018"), [""])
sketch21.MapMode = "FlatFace"
sketch21.addGeometry(Part.Circle(V(33.1, 25.8, 0), V(0, 0, 1), 0.7), False)
sketch21.addConstraint([
    Sketcher.Constraint("Diameter", 0, Q("1.31009 mm")),
    Sketcher.Constraint("DistanceY", -1, 1, 0, 3, Q("25.816042 mm")),
    Sketcher.Constraint("DistanceX", -1, 1, 0, 3, Q("33.092733 mm")),
])
pad21 = body19.newObject("PartDesign::Pad", "Pad020")
pad21.Profile = sketch21
pad21.Length = Q("0.51 in")
body20 = doc.addObject("PartDesign::Body", "Body019")

sketch22 = body20.newObject("Sketcher::SketchObject", "Sketch021")
sketch22.AttachmentSupport = (doc.getObject("XZ_Plane019"), [""])
sketch22.MapMode = "FlatFace"
sketch22.addGeometry(Part.Circle(V(32.3, 23.5, 0), V(0, 0, 1), 0.5), False)
sketch22.addConstraint([
    Sketcher.Constraint("Diameter", 0, Q("1.00117 mm")),
    Sketcher.Constraint("DistanceX", -1, 1, 0, 3, Q("32.331076 mm")),
    Sketcher.Constraint("DistanceY", -1, 1, 0, 3, Q("23.472484 mm")),
])
pad22 = body20.newObject("PartDesign::Pad", "Pad021")
pad22.Profile = sketch22
pad22.Length = Q("0.51 in")
body21 = doc.addObject("PartDesign::Body", "Body020")

sketch23 = body21.newObject("Sketcher::SketchObject", "Sketch022")
sketch23.AttachmentSupport = (doc.getObject("XZ_Plane020"), [""])
sketch23.MapMode = "FlatFace"
sketch23.addGeometry(Part.Circle(V(30.8, 21.8, 0), V(0, 0, 1), 0.7), False)
sketch23.addConstraint([
    Sketcher.Constraint("Diameter", 0, Q("1.310093 mm")),
    Sketcher.Constraint("DistanceX", -1, 1, 0, 3, Q("30.807765 mm")),
    Sketcher.Constraint("DistanceY", -1, 1, 0, 3, Q("21.831995 mm")),
])
pad23 = body21.newObject("PartDesign::Pad", "Pad022")
pad23.Profile = sketch23
pad23.Length = Q("0.51 in")
body22 = doc.addObject("PartDesign::Body", "Body021")

sketch24 = body22.newObject("Sketcher::SketchObject", "Sketch023")
sketch24.AttachmentSupport = (doc.getObject("XZ_Plane021"), [""])
sketch24.MapMode = "FlatFace"
sketch24.addGeometry(Part.Circle(V(29.9, 19.7, 0), V(0, 0, 1), 1), False)
sketch24.addConstraint([
    Sketcher.Constraint("Diameter", 0, Q("1.992021 mm")),
    Sketcher.Constraint("DistanceY", -1, 1, 0, 3, Q("19.664202 mm")),
    Sketcher.Constraint("DistanceX", -1, 1, 0, 3, Q("29.870341 mm")),
])
pad24 = body22.newObject("PartDesign::Pad", "Pad023")
pad24.Profile = sketch24
pad24.Length = Q("0.51 in")
body23 = doc.addObject("PartDesign::Body", "Body022")

sketch25 = body23.newObject("Sketcher::SketchObject", "Sketch024")
sketch25.AttachmentSupport = (doc.getObject("XZ_Plane022"), [""])
sketch25.MapMode = "FlatFace"
sketch25.addGeometry(Part.Circle(V(29.6, 17.4, 0), V(0, 0, 1), 0.7), False)
sketch25.addConstraint([
    Sketcher.Constraint("Diameter", 0, Q("1.44941 mm")),
    Sketcher.Constraint("DistanceY", -1, 1, 0, 3, Q("17.437821 mm")),
    Sketcher.Constraint("DistanceX", -1, 1, 0, 3, Q("29.577397 mm")),
])
pad25 = body23.newObject("PartDesign::Pad", "Pad024")
pad25.Profile = sketch25
pad25.Length = Q("0.51 in")
body24 = doc.addObject("PartDesign::Body", "Body023")

sketch26 = body24.newObject("Sketcher::SketchObject", "Sketch025")
sketch26.AttachmentSupport = (doc.getObject("XZ_Plane023"), [""])
sketch26.MapMode = "FlatFace"
sketch26.addGeometry(Part.Circle(V(32.6, 17.7, 0), V(0, 0, 1), 0.7), False)
sketch26.addConstraint([
    Sketcher.Constraint("Diameter", 0, Q("1.371533 mm")),
    Sketcher.Constraint("DistanceX", -1, 1, 0, 3, Q("32.565434 mm")),
    Sketcher.Constraint("DistanceY", -1, 1, 0, 3, Q("17.672177 mm")),
])
pad26 = body24.newObject("PartDesign::Pad", "Pad025")
pad26.Profile = sketch26
pad26.Length = Q("0.51 in")

doc.recompute()
